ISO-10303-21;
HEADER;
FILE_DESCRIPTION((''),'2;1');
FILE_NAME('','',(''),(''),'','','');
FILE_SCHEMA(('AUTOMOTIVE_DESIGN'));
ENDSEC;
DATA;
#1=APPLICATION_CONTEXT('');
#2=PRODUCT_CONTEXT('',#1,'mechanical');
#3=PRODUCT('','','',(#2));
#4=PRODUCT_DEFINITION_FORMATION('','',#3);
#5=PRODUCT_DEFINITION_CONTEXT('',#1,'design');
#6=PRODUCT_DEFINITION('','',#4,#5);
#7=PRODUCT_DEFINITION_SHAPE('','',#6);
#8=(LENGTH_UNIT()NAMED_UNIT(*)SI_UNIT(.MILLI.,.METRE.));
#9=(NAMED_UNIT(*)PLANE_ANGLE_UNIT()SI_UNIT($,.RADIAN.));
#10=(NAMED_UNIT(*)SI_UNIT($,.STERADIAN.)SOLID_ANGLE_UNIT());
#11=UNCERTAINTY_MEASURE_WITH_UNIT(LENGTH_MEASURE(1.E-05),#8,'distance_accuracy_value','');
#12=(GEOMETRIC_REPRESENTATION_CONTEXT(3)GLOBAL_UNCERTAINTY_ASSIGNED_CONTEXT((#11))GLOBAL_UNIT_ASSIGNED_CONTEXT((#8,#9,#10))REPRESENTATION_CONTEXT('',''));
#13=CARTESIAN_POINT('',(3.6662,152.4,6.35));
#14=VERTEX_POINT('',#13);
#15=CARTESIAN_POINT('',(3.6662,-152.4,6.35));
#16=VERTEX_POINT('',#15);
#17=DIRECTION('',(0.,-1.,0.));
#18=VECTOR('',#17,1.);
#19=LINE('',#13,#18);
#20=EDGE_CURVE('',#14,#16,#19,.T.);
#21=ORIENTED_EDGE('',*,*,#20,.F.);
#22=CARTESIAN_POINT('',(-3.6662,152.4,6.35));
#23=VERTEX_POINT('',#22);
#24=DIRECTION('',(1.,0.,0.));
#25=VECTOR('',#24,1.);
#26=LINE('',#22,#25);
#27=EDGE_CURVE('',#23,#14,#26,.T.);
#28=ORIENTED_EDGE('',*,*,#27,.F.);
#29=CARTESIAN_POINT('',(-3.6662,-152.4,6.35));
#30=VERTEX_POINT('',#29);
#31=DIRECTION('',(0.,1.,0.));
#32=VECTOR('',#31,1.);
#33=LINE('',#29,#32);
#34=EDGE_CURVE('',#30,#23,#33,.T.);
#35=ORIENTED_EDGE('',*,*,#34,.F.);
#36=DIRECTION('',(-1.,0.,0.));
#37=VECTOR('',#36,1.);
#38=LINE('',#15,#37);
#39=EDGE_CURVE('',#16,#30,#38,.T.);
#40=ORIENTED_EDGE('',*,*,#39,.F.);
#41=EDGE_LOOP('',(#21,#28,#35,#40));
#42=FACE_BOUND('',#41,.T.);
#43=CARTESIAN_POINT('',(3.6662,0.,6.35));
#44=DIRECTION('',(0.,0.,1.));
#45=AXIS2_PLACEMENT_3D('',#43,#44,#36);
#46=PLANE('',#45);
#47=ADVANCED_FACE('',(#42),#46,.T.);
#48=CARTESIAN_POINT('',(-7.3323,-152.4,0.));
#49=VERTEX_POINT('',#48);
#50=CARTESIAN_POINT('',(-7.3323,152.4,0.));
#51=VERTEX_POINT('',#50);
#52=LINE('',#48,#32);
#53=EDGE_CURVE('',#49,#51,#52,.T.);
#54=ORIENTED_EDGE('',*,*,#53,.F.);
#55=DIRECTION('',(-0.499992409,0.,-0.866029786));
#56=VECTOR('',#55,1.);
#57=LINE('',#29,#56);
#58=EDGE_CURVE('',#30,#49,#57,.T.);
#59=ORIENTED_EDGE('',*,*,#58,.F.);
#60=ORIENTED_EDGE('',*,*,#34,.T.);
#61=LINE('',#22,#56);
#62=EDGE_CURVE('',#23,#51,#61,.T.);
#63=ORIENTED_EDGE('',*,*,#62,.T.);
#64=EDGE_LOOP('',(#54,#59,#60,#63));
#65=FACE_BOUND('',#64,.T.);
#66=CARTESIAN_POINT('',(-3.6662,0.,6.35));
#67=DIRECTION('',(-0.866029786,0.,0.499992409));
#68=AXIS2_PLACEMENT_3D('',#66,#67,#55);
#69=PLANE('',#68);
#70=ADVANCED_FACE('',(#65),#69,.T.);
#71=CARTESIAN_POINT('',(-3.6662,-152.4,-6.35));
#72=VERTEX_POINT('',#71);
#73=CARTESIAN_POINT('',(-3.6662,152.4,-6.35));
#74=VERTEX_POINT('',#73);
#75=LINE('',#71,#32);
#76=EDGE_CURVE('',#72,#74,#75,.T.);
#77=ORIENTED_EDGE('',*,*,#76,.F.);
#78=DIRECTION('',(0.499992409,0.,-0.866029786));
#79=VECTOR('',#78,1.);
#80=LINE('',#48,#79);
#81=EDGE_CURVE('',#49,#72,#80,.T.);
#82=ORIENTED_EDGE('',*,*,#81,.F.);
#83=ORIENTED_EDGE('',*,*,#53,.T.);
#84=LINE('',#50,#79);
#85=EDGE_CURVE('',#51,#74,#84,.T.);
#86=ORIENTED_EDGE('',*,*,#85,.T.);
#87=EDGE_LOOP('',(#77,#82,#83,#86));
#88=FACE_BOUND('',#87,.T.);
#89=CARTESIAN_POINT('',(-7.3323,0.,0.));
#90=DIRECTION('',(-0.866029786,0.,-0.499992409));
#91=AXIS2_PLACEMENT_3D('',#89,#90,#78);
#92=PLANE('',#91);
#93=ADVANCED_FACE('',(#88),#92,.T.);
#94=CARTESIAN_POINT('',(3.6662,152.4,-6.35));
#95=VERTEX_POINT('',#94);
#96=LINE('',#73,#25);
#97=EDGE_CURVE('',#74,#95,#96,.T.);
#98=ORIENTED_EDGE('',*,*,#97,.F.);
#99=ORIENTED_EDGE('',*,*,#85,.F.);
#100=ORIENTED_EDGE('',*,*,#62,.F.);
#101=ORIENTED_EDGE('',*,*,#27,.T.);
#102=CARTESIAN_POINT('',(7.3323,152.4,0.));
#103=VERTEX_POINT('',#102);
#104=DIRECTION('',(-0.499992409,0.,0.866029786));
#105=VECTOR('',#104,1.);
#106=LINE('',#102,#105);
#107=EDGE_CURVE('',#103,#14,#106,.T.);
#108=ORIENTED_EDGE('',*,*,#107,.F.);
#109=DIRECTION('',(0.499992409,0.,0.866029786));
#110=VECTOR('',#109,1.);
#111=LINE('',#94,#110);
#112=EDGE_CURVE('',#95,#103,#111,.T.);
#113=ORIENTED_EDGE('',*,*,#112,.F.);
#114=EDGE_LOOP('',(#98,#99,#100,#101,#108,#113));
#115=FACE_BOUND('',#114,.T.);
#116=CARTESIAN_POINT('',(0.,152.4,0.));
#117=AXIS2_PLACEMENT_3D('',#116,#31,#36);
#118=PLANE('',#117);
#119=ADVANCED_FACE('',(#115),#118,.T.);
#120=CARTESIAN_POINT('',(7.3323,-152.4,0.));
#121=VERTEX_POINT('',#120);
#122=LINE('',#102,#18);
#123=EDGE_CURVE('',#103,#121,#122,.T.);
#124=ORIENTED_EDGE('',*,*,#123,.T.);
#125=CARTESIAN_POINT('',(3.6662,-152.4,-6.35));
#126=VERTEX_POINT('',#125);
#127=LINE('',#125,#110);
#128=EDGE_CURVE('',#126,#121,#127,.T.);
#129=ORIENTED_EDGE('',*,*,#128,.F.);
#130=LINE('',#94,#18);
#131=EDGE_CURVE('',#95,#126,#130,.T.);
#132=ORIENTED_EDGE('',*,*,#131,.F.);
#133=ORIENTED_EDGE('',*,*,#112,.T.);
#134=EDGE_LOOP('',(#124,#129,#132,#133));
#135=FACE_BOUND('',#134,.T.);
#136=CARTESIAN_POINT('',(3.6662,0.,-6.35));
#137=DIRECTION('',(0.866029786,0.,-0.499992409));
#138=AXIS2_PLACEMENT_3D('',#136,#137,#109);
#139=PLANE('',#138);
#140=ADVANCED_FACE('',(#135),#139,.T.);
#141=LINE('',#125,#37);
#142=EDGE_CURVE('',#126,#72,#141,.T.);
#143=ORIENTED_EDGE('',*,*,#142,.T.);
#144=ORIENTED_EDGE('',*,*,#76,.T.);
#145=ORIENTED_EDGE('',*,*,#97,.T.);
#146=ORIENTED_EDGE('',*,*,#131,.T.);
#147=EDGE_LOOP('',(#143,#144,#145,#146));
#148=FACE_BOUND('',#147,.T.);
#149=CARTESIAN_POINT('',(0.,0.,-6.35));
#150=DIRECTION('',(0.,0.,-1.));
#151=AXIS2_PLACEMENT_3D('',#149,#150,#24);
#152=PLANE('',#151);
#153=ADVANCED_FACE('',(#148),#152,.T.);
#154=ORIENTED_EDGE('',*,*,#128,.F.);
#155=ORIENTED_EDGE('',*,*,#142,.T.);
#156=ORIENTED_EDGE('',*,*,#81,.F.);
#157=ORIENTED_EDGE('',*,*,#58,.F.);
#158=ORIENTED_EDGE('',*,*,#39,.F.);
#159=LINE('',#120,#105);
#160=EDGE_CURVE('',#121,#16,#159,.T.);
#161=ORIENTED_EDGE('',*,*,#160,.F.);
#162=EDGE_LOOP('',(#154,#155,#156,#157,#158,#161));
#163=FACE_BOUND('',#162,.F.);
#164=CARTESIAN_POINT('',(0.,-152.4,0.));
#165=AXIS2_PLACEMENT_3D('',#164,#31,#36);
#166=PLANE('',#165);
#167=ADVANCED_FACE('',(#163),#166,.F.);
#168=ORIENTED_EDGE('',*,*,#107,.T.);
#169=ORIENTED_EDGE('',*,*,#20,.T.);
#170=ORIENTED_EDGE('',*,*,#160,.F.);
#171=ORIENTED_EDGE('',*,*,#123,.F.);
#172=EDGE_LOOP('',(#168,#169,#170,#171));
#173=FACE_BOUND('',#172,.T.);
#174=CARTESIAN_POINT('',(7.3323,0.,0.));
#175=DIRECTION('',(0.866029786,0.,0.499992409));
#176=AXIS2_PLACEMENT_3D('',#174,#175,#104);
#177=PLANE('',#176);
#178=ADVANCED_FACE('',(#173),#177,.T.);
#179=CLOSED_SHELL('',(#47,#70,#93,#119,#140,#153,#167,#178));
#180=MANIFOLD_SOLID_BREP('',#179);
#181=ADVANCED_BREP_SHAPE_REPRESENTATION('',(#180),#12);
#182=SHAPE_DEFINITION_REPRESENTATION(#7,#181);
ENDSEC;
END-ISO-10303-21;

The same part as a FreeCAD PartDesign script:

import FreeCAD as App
import Part
import Sketcher
Q = App.Units.Quantity


def add_polygon(sketch, points):
    """Adds a closed chain of lines whose ends are joined by coincident constraints."""
    first, n = sketch.GeometryCount, len(points)
    for a, b in zip(points, points[1:] + points[:1]):
        sketch.addGeometry(Part.LineSegment(App.Vector(*a, 0), App.Vector(*b, 0)), False)
    for i in range(n):
        sketch.addConstraint(Sketcher.Constraint("Coincident", first + i, 2, first + (i + 1) % n, 1))

doc = App.newDocument("Part")
body = doc.addObject("PartDesign::Body", "Body")

# Sketch on XZ plane
sketch1 = body.newObject("Sketcher::SketchObject", "Sketch")
sketch1.AttachmentSupport = (doc.getObject("XZ_Plane"), [""])
sketch1.MapMode = "FlatFace"
add_polygon(sketch1, [(3.6662, -6.35), (-3.6662, -6.35), (-7.3323, 0), (-3.6662, 6.35), (3.6662, 6.35), (7.3323, 0)])  # lines 0-5
sketch1.addConstraint([
    Sketcher.Constraint("Horizontal", 0),
    Sketcher.Constraint("Horizontal", 3),
    Sketcher.Constraint("Symmetric", 0, 2, 3, 2, -1, 1),
    Sketcher.Constraint("Symmetric", 1, 2, 4, 2, -1, 1),
    Sketcher.Constraint("PointOnObject", 1, 2, -1),
    Sketcher.Constraint("Parallel", 2, 5),
    Sketcher.Constraint("Vertical", 0, 2, 2, 2),
    Sketcher.Constraint("DistanceY", 0, 2, 2, 2, Q("0.5 in")),
    Sketcher.Constraint("Angle", 1, Q("119.9995 deg")),
    Sketcher.Constraint("DistanceX", 1, 2, 3, 2, Q("0.433 in")),
])
pad1 = body.newObject("PartDesign::Pad", "Pad")
pad1.Profile = sketch1
pad1.Length = Q("12 in")
pad1.Midplane = True

doc.recompute()
